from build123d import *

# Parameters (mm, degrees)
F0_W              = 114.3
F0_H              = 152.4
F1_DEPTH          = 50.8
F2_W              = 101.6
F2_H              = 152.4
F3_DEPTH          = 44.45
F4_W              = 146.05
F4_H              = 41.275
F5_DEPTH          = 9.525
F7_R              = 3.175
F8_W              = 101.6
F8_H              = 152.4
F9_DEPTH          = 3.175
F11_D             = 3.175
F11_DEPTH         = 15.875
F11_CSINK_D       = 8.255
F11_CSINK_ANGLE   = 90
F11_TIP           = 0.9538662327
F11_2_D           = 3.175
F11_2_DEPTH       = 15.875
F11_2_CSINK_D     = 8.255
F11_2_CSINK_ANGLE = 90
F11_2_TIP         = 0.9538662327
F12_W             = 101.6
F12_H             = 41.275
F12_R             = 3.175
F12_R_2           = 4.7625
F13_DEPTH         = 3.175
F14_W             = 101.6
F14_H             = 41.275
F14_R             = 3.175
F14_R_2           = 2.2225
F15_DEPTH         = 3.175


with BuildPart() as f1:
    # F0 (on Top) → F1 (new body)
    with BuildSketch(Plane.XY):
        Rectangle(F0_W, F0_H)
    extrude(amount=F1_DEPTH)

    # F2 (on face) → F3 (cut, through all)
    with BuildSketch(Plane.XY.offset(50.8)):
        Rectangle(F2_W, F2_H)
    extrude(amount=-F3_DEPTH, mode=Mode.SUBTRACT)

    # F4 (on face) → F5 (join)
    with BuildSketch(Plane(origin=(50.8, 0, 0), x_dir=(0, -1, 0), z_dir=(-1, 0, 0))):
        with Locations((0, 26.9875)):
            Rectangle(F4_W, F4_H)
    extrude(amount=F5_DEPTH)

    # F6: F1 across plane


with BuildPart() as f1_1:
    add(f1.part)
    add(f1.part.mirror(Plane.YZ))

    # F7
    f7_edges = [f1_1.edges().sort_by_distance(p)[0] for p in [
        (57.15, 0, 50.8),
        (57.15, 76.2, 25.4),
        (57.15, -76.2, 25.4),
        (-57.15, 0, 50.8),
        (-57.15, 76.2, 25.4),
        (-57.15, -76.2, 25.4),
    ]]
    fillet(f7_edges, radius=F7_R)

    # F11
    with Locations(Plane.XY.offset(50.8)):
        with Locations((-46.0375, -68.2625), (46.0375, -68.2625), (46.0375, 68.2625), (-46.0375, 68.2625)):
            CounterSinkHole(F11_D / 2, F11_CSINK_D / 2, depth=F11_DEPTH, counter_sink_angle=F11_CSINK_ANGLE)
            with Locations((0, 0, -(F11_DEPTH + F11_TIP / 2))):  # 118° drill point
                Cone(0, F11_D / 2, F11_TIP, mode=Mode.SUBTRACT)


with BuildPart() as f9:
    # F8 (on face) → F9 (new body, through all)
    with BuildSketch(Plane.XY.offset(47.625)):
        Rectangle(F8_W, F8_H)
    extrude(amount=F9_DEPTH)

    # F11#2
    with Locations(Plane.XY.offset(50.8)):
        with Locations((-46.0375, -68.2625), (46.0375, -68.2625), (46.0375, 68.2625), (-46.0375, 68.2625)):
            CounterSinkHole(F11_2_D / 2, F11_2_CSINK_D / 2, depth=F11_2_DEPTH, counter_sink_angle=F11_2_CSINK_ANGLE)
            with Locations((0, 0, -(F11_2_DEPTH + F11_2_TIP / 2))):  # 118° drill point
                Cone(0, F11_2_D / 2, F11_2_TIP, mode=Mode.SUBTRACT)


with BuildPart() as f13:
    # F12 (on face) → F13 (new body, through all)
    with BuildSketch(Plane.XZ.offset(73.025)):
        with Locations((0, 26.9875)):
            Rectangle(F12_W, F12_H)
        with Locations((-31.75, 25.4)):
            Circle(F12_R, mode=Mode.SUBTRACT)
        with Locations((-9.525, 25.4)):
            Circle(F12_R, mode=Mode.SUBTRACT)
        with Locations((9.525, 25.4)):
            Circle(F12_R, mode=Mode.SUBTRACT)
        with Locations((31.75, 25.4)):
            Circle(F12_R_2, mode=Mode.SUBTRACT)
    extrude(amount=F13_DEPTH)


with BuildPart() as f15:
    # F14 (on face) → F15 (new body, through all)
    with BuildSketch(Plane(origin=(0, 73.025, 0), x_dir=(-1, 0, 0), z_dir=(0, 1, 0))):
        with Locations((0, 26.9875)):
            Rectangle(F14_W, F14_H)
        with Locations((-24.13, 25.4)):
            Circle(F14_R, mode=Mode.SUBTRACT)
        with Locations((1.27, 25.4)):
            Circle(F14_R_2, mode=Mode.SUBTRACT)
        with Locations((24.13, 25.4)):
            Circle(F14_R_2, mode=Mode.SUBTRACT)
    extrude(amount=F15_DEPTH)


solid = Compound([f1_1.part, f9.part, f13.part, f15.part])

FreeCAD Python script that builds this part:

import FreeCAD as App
import Part
import Sketcher
from FreeCAD import Vector
Q = App.Units.Quantity


def edges_at(feature, points):
    """Names of the edges that pass closest to the given points."""
    edges = feature.Shape.Edges
    near = lambda p: min(range(len(edges)), key=lambda i: edges[i].distToShape(Part.Vertex(*p))[0])
    return sorted({f"Edge{near(p) + 1}" for p in points})

doc = App.newDocument("Part")
body = doc.addObject("PartDesign::Body", "Body")

# Sketch on XY plane
sketch1 = doc.addObject("Sketcher::SketchObject", "Sketch")
body.addObject(sketch1)
sketch1.AttachmentSupport = (doc.XY_Plane, [""])
sketch1.MapMode = "FlatFace"
sketch1.addGeometry(Part.LineSegment(Vector(-57, 76, 0), Vector(-57, -76, 0)), False)
sketch1.addGeometry(Part.LineSegment(Vector(-57, -76, 0), Vector(57, -76, 0)), False)
sketch1.addGeometry(Part.LineSegment(Vector(57, -76, 0), Vector(57, 76, 0)), False)
sketch1.addGeometry(Part.LineSegment(Vector(57, 76, 0), Vector(-57, 76, 0)), False)
sketch1.addConstraint(Sketcher.Constraint("Coincident", 0, 2, 1, 1))
sketch1.addConstraint(Sketcher.Constraint("Coincident", 1, 2, 2, 1))
sketch1.addConstraint(Sketcher.Constraint("Coincident", 2, 2, 3, 1))
sketch1.addConstraint(Sketcher.Constraint("Coincident", 3, 2, 0, 1))
sketch1.addConstraint(Sketcher.Constraint("Vertical", 0))
sketch1.addConstraint(Sketcher.Constraint("Horizontal", 1))
sketch1.addConstraint(Sketcher.Constraint("Vertical", 2))
sketch1.addConstraint(Sketcher.Constraint("Horizontal", 3))
sketch1.addConstraint(Sketcher.Constraint("Symmetric", 0, 2, 2, 2, -1, 1))
sketch1.addConstraint(Sketcher.Constraint("DistanceY", 0, 2, 0, 1, Q("6 in")))
sketch1.addConstraint(Sketcher.Constraint("DistanceX", 1, 1, 1, 2, Q("4.5 in")))
pad1 = doc.addObject("PartDesign::Pad", "Pad")
body.addObject(pad1)
pad1.Profile = sketch1
pad1.Length = Q("2 in")

# Sketch on XY plane
sketch2 = doc.addObject("Sketcher::SketchObject", "Sketch001")
body.addObject(sketch2)
sketch2.AttachmentSupport = (doc.XY_Plane, [""])
sketch2.MapMode = "FlatFace"
sketch2.AttachmentOffset = App.Placement(Vector(0, 0, 2 * 25.4), App.Rotation())
sketch2.addGeometry(Part.LineSegment(Vector(-51, 76, 0), Vector(-51, -76, 0)), False)
sketch2.addGeometry(Part.LineSegment(Vector(-51, -76, 0), Vector(51, -76, 0)), False)
sketch2.addGeometry(Part.LineSegment(Vector(51, -76, 0), Vector(51, 76, 0)), False)
sketch2.addGeometry(Part.LineSegment(Vector(51, 76, 0), Vector(-51, 76, 0)), False)
sketch2.addConstraint(Sketcher.Constraint("Coincident", 0, 2, 1, 1))
sketch2.addConstraint(Sketcher.Constraint("Coincident", 1, 2, 2, 1))
sketch2.addConstraint(Sketcher.Constraint("Coincident", 2, 2, 3, 1))
sketch2.addConstraint(Sketcher.Constraint("Coincident", 3, 2, 0, 1))
sketch2.addConstraint(Sketcher.Constraint("Vertical", 0))
sketch2.addConstraint(Sketcher.Constraint("Horizontal", 1))
sketch2.addConstraint(Sketcher.Constraint("Vertical", 2))
sketch2.addConstraint(Sketcher.Constraint("Horizontal", 3))
sketch2.addConstraint(Sketcher.Constraint("Symmetric", 0, 2, 2, 2, -1, 1))
sketch2.addConstraint(Sketcher.Constraint("DistanceX", 1, 1, 1, 2, Q("4 in")))
sketch2.addConstraint(Sketcher.Constraint("DistanceY", 0, 2, 0, 1, Q("6 in")))
pocket1 = doc.addObject("PartDesign::Pocket", "Pocket")
body.addObject(pocket1)
pocket1.Profile = sketch2
pocket1.Length = Q("1.75 in")

# Sketch on YZ plane
sketch3 = doc.addObject("Sketcher::SketchObject", "Sketch002")
body.addObject(sketch3)
sketch3.AttachmentSupport = (doc.YZ_Plane, [""])
sketch3.MapMode = "FlatFace"
sketch3.AttachmentOffset = App.Placement(Vector(0, 0, 2 * 25.4), App.Rotation())
sketch3.addGeometry(Part.LineSegment(Vector(73, 48, 0), Vector(73, 6, 0)), False)
sketch3.addGeometry(Part.LineSegment(Vector(73, 6, 0), Vector(-73, 6, 0)), False)
sketch3.addGeometry(Part.LineSegment(Vector(-73, 6, 0), Vector(-73, 48, 0)), False)
sketch3.addGeometry(Part.LineSegment(Vector(-73, 48, 0), Vector(73, 48, 0)), False)
sketch3.addConstraint(Sketcher.Constraint("Coincident", 0, 2, 1, 1))
sketch3.addConstraint(Sketcher.Constraint("Coincident", 1, 2, 2, 1))
sketch3.addConstraint(Sketcher.Constraint("Coincident", 2, 2, 3, 1))
sketch3.addConstraint(Sketcher.Constraint("Coincident", 3, 2, 0, 1))
sketch3.addConstraint(Sketcher.Constraint("Vertical", 0))
sketch3.addConstraint(Sketcher.Constraint("Horizontal", 1))
sketch3.addConstraint(Sketcher.Constraint("Vertical", 2))
sketch3.addConstraint(Sketcher.Constraint("Horizontal", 3))
sketch3.addConstraint(Sketcher.Constraint("DistanceX", 1, 2, 1, 1, Q("5.75 in")))
sketch3.addConstraint(Sketcher.Constraint("DistanceY", 0, 2, 0, 1, Q("1.625 in")))
sketch3.addConstraint(Sketcher.Constraint("DistanceY", -1, 1, 0, 2, Q("0.25 in")))
sketch3.addConstraint(Sketcher.Constraint("DistanceX", -1, 1, 0, 2, Q("2.875 in")))
pad2 = doc.addObject("PartDesign::Pad", "Pad001")
body.addObject(pad2)
pad2.Profile = sketch3
pad2.Length = Q("0.375 in")
pad2.Reversed = True
body2 = doc.addObject("PartDesign::Body", "Body001")
doc.recompute()

body2.BaseFeature = body
doc.recompute()

mirroring = doc.addObject("Part::Mirroring", "Mirroring")
mirroring.Source = body
mirroring.Base = Vector(0, 0, 0)
mirroring.Normal = Vector(1, 0, 0)
body3 = doc.addObject("PartDesign::Body", "Body002")
body3.BaseFeature = mirroring
boolean = doc.addObject("PartDesign::Boolean", "Boolean")
body2.addObject(boolean)
boolean.Type = "Fuse"
boolean.addObjects([body3])
doc.recompute()

fillet = doc.addObject("PartDesign::Fillet", "Fillet")
body2.addObject(fillet)
fillet.Base = (boolean, edges_at(boolean, [
    (57.15, 0, 50.8),
    (57.15, 76.2, 25.4),
    (57.15, -76.2, 25.4),
    (-57.15, 0, 50.8),
    (-57.15, 76.2, 25.4),
    (-57.15, -76.2, 25.4),
]))
fillet.Radius = Q("0.125 in")

# Sketch on XY plane
sketch4 = doc.addObject("Sketcher::SketchObject", "Sketch003")
body2.addObject(sketch4)
sketch4.AttachmentSupport = (doc.getObject("XY_Plane001"), [""])
sketch4.MapMode = "FlatFace"
sketch4.AttachmentOffset = App.Placement(Vector(0, 0, 2 * 25.4), App.Rotation())
sketch4.addGeometry(Part.Circle(Vector(-46, -68.3, 0), Vector(0, 0, 1), 1.6), False)
sketch4.addGeometry(Part.Circle(Vector(46, -68.3, 0), Vector(0, 0, 1), 1.6), False)
sketch4.addGeometry(Part.Circle(Vector(46, 68.3, 0), Vector(0, 0, 1), 1.6), False)
sketch4.addGeometry(Part.Circle(Vector(-46, 68.3, 0), Vector(0, 0, 1), 1.6), False)
sketch4.addConstraint(Sketcher.Constraint("Equal", 0, 1))
sketch4.addConstraint(Sketcher.Constraint("Equal", 1, 2))
sketch4.addConstraint(Sketcher.Constraint("Equal", 2, 3))
sketch4.addConstraint(Sketcher.Constraint("Symmetric", 0, 3, 2, 3, -1, 1))
sketch4.addConstraint(Sketcher.Constraint("Symmetric", 1, 3, 3, 3, -1, 1))
sketch4.addConstraint(Sketcher.Constraint("Symmetric", 0, 3, 1, 3, -2))
sketch4.addConstraint(Sketcher.Constraint("Diameter", 0, Q("0.125 in")))
sketch4.addConstraint(Sketcher.Constraint("DistanceX", 0, 3, -1, 1, Q("1.8125 in")))
sketch4.addConstraint(Sketcher.Constraint("DistanceY", 0, 3, -1, 1, Q("2.6875 in")))
doc.recompute()
hole = doc.addObject("PartDesign::Hole", "Hole")
body2.addObject(hole)
hole.Profile = sketch4
hole.ThreadType = "None"
hole.Diameter = Q("0.125 in")
hole.DepthType = "Dimension"
hole.Depth = Q("0.625 in")
hole.DrillPoint = "Angled"
hole.DrillPointAngle = 118
hole.HoleCutType = "Countersink"
hole.HoleCutDiameter = Q("0.325 in")
hole.HoleCutCountersinkAngle = 90
body4 = doc.addObject("PartDesign::Body", "Body003")

# Sketch on XY plane
sketch5 = doc.addObject("Sketcher::SketchObject", "Sketch004")
body4.addObject(sketch5)
sketch5.AttachmentSupport = (doc.getObject("XY_Plane003"), [""])
sketch5.MapMode = "FlatFace"
sketch5.AttachmentOffset = App.Placement(Vector(0, 0, 1.875 * 25.4), App.Rotation())
sketch5.addGeometry(Part.LineSegment(Vector(-51, 76, 0), Vector(-51, -76, 0)), False)
sketch5.addGeometry(Part.LineSegment(Vector(-51, -76, 0), Vector(51, -76, 0)), False)
sketch5.addGeometry(Part.LineSegment(Vector(51, -76, 0), Vector(51, 76, 0)), False)
sketch5.addGeometry(Part.LineSegment(Vector(51, 76, 0), Vector(-51, 76, 0)), False)
sketch5.addConstraint(Sketcher.Constraint("Coincident", 0, 2, 1, 1))
sketch5.addConstraint(Sketcher.Constraint("Coincident", 1, 2, 2, 1))
sketch5.addConstraint(Sketcher.Constraint("Coincident", 2, 2, 3, 1))
sketch5.addConstraint(Sketcher.Constraint("Coincident", 3, 2, 0, 1))
sketch5.addConstraint(Sketcher.Constraint("Vertical", 0))
sketch5.addConstraint(Sketcher.Constraint("Horizontal", 1))
sketch5.addConstraint(Sketcher.Constraint("Vertical", 2))
sketch5.addConstraint(Sketcher.Constraint("Horizontal", 3))
sketch5.addConstraint(Sketcher.Constraint("Symmetric", 0, 2, 2, 2, -1, 1))
sketch5.addConstraint(Sketcher.Constraint("DistanceX", 1, 1, 1, 2, Q("4 in")))
sketch5.addConstraint(Sketcher.Constraint("DistanceY", 0, 2, 0, 1, Q("6 in")))
pad3 = doc.addObject("PartDesign::Pad", "Pad002")
body4.addObject(pad3)
pad3.Profile = sketch5
pad3.Length = Q("0.125 in")

# Sketch on XY plane
sketch6 = doc.addObject("Sketcher::SketchObject", "Sketch005")
body4.addObject(sketch6)
sketch6.AttachmentSupport = (doc.getObject("XY_Plane003"), [""])
sketch6.MapMode = "FlatFace"
sketch6.AttachmentOffset = App.Placement(Vector(0, 0, 2 * 25.4), App.Rotation())
sketch6.addGeometry(Part.Circle(Vector(-46, -68.3, 0), Vector(0, 0, 1), 1.6), False)
sketch6.addGeometry(Part.Circle(Vector(46, -68.3, 0), Vector(0, 0, 1), 1.6), False)
sketch6.addGeometry(Part.Circle(Vector(46, 68.3, 0), Vector(0, 0, 1), 1.6), False)
sketch6.addGeometry(Part.Circle(Vector(-46, 68.3, 0), Vector(0, 0, 1), 1.6), False)
sketch6.addConstraint(Sketcher.Constraint("Equal", 0, 1))
sketch6.addConstraint(Sketcher.Constraint("Equal", 1, 2))
sketch6.addConstraint(Sketcher.Constraint("Equal", 2, 3))
sketch6.addConstraint(Sketcher.Constraint("Symmetric", 0, 3, 2, 3, -1, 1))
sketch6.addConstraint(Sketcher.Constraint("Symmetric", 1, 3, 3, 3, -1, 1))
sketch6.addConstraint(Sketcher.Constraint("Symmetric", 0, 3, 1, 3, -2))
sketch6.addConstraint(Sketcher.Constraint("Diameter", 0, Q("0.125 in")))
sketch6.addConstraint(Sketcher.Constraint("DistanceX", 0, 3, -1, 1, Q("1.8125 in")))
sketch6.addConstraint(Sketcher.Constraint("DistanceY", 0, 3, -1, 1, Q("2.6875 in")))
doc.recompute()
hole2 = doc.addObject("PartDesign::Hole", "Hole001")
body4.addObject(hole2)
hole2.Profile = sketch6
hole2.ThreadType = "None"
hole2.Diameter = Q("0.125 in")
hole2.DepthType = "Dimension"
hole2.Depth = Q("0.625 in")
hole2.DrillPoint = "Angled"
hole2.DrillPointAngle = 118
hole2.HoleCutType = "Countersink"
hole2.HoleCutDiameter = Q("0.325 in")
hole2.HoleCutCountersinkAngle = 90
body5 = doc.addObject("PartDesign::Body", "Body004")

# Sketch on XZ plane
sketch7 = doc.addObject("Sketcher::SketchObject", "Sketch006")
body5.addObject(sketch7)
sketch7.AttachmentSupport = (doc.getObject("XZ_Plane004"), [""])
sketch7.MapMode = "FlatFace"
sketch7.AttachmentOffset = App.Placement(Vector(0, 0, 2.875 * 25.4), App.Rotation())
sketch7.addGeometry(Part.LineSegment(Vector(-50.8, 47.6, 0), Vector(-50.8, 6.3, 0)), False)
sketch7.addGeometry(Part.LineSegment(Vector(-50.8, 6.3, 0), Vector(50.8, 6.3, 0)), False)
sketch7.addGeometry(Part.LineSegment(Vector(50.8, 6.3, 0), Vector(50.8, 47.6, 0)), False)
sketch7.addGeometry(Part.LineSegment(Vector(50.8, 47.6, 0), Vector(-50.8, 47.6, 0)), False)
sketch7.addGeometry(Part.Circle(Vector(-31.8, 25.4, 0), Vector(0, 0, 1), 3.2), False)
sketch7.addGeometry(Part.Circle(Vector(-9.5, 25.4, 0), Vector(0, 0, 1), 3.2), False)
sketch7.addGeometry(Part.Circle(Vector(9.5, 25.4, 0), Vector(0, 0, 1), 3.2), False)
sketch7.addGeometry(Part.Circle(Vector(31.8, 25.4, 0), Vector(0, 0, 1), 4.8), False)
sketch7.addConstraint(Sketcher.Constraint("Coincident", 0, 2, 1, 1))
sketch7.addConstraint(Sketcher.Constraint("Coincident", 1, 2, 2, 1))
sketch7.addConstraint(Sketcher.Constraint("Coincident", 2, 2, 3, 1))
sketch7.addConstraint(Sketcher.Constraint("Coincident", 3, 2, 0, 1))
sketch7.addConstraint(Sketcher.Constraint("Vertical", 0))
sketch7.addConstraint(Sketcher.Constraint("Horizontal", 1))
sketch7.addConstraint(Sketcher.Constraint("Vertical", 2))
sketch7.addConstraint(Sketcher.Constraint("Horizontal", 3))
sketch7.addConstraint(Sketcher.Constraint("Equal", 4, 5))
sketch7.addConstraint(Sketcher.Constraint("Equal", 5, 6))
sketch7.addConstraint(Sketcher.Constraint("Symmetric", 5, 3, 6, 3, -2))
sketch7.addConstraint(Sketcher.Constraint("Symmetric", 4, 3, 7, 3, -2))
sketch7.addConstraint(Sketcher.Constraint("Horizontal", 4, 3, 5, 3))
sketch7.addConstraint(Sketcher.Constraint("Diameter", 4, Q("0.25 in")))
sketch7.addConstraint(Sketcher.Constraint("DistanceX", 1, 1, 1, 2, Q("4 in")))
sketch7.addConstraint(Sketcher.Constraint("Diameter", 7, Q("0.375 in")))
sketch7.addConstraint(Sketcher.Constraint("DistanceY", -1, 1, 4, 3, Q("1 in")))
sketch7.addConstraint(Sketcher.Constraint("DistanceX", 0, 2, -1, 1, Q("2 in")))
sketch7.addConstraint(Sketcher.Constraint("DistanceX", 4, 3, 7, 3, Q("2.5 in")))
sketch7.addConstraint(Sketcher.Constraint("DistanceY", 0, 2, 0, 1, Q("1.625 in")))
sketch7.addConstraint(Sketcher.Constraint("DistanceY", -1, 1, 0, 2, Q("0.25 in")))
sketch7.addConstraint(Sketcher.Constraint("DistanceX", 5, 3, 6, 3, Q("0.75 in")))
pad4 = doc.addObject("PartDesign::Pad", "Pad003")
body5.addObject(pad4)
pad4.Profile = sketch7
pad4.Length = Q("0.125 in")
body6 = doc.addObject("PartDesign::Body", "Body005")

# Sketch on XZ plane
sketch8 = doc.addObject("Sketcher::SketchObject", "Sketch007")
body6.addObject(sketch8)
sketch8.AttachmentSupport = (doc.getObject("XZ_Plane005"), [""])
sketch8.MapMode = "FlatFace"
sketch8.AttachmentOffset = App.Placement(Vector(0, 0, -2.875 * 25.4), App.Rotation())
sketch8.addGeometry(Part.LineSegment(Vector(50.8, 47.6, 0), Vector(50.8, 6.3, 0)), False)
sketch8.addGeometry(Part.LineSegment(Vector(50.8, 6.3, 0), Vector(-50.8, 6.3, 0)), False)
sketch8.addGeometry(Part.LineSegment(Vector(-50.8, 6.3, 0), Vector(-50.8, 47.6, 0)), False)
sketch8.addGeometry(Part.LineSegment(Vector(-50.8, 47.6, 0), Vector(50.8, 47.6, 0)), False)
sketch8.addGeometry(Part.Circle(Vector(24.1, 25.4, 0), Vector(0, 0, 1), 3.2), False)
sketch8.addGeometry(Part.Circle(Vector(-1.3, 25.4, 0), Vector(0, 0, 1), 2.2), False)
sketch8.addGeometry(Part.Circle(Vector(-24.1, 25.4, 0), Vector(0, 0, 1), 2.2), False)
sketch8.addConstraint(Sketcher.Constraint("Coincident", 0, 2, 1, 1))
sketch8.addConstraint(Sketcher.Constraint("Coincident", 1, 2, 2, 1))
sketch8.addConstraint(Sketcher.Constraint("Coincident", 2, 2, 3, 1))
sketch8.addConstraint(Sketcher.Constraint("Coincident", 3, 2, 0, 1))
sketch8.addConstraint(Sketcher.Constraint("Vertical", 0))
sketch8.addConstraint(Sketcher.Constraint("Horizontal", 1))
sketch8.addConstraint(Sketcher.Constraint("Vertical", 2))
sketch8.addConstraint(Sketcher.Constraint("Horizontal", 3))
sketch8.addConstraint(Sketcher.Constraint("Equal", 5, 6))
sketch8.addConstraint(Sketcher.Constraint("Symmetric", 4, 3, 6, 3, -2))
sketch8.addConstraint(Sketcher.Constraint("Horizontal", 4, 3, 5, 3))
sketch8.addConstraint(Sketcher.Constraint("Diameter", 4, Q("0.25 in")))
sketch8.addConstraint(Sketcher.Constraint("DistanceX", 1, 2, 1, 1, Q("4 in")))
sketch8.addConstraint(Sketcher.Constraint("Diameter", 5, Q("0.175 in")))
sketch8.addConstraint(Sketcher.Constraint("DistanceY", -1, 1, 4, 3, Q("1 in")))
sketch8.addConstraint(Sketcher.Constraint("DistanceX", -1, 1, 0, 2, Q("2 in")))
sketch8.addConstraint(Sketcher.Constraint("DistanceX", 5, 3, 4, 3, Q("1 in")))
sketch8.addConstraint(Sketcher.Constraint("DistanceX", 6, 3, 5, 3, Q("0.9 in")))
sketch8.addConstraint(Sketcher.Constraint("DistanceY", 0, 2, 0, 1, Q("1.625 in")))
sketch8.addConstraint(Sketcher.Constraint("DistanceY", -1, 1, 0, 2, Q("0.25 in")))
pad5 = doc.addObject("PartDesign::Pad", "Pad004")
body6.addObject(pad5)
pad5.Profile = sketch8
pad5.Length = Q("0.125 in")
pad5.Reversed = True
mirroring.Visibility = False

doc.recompute()
